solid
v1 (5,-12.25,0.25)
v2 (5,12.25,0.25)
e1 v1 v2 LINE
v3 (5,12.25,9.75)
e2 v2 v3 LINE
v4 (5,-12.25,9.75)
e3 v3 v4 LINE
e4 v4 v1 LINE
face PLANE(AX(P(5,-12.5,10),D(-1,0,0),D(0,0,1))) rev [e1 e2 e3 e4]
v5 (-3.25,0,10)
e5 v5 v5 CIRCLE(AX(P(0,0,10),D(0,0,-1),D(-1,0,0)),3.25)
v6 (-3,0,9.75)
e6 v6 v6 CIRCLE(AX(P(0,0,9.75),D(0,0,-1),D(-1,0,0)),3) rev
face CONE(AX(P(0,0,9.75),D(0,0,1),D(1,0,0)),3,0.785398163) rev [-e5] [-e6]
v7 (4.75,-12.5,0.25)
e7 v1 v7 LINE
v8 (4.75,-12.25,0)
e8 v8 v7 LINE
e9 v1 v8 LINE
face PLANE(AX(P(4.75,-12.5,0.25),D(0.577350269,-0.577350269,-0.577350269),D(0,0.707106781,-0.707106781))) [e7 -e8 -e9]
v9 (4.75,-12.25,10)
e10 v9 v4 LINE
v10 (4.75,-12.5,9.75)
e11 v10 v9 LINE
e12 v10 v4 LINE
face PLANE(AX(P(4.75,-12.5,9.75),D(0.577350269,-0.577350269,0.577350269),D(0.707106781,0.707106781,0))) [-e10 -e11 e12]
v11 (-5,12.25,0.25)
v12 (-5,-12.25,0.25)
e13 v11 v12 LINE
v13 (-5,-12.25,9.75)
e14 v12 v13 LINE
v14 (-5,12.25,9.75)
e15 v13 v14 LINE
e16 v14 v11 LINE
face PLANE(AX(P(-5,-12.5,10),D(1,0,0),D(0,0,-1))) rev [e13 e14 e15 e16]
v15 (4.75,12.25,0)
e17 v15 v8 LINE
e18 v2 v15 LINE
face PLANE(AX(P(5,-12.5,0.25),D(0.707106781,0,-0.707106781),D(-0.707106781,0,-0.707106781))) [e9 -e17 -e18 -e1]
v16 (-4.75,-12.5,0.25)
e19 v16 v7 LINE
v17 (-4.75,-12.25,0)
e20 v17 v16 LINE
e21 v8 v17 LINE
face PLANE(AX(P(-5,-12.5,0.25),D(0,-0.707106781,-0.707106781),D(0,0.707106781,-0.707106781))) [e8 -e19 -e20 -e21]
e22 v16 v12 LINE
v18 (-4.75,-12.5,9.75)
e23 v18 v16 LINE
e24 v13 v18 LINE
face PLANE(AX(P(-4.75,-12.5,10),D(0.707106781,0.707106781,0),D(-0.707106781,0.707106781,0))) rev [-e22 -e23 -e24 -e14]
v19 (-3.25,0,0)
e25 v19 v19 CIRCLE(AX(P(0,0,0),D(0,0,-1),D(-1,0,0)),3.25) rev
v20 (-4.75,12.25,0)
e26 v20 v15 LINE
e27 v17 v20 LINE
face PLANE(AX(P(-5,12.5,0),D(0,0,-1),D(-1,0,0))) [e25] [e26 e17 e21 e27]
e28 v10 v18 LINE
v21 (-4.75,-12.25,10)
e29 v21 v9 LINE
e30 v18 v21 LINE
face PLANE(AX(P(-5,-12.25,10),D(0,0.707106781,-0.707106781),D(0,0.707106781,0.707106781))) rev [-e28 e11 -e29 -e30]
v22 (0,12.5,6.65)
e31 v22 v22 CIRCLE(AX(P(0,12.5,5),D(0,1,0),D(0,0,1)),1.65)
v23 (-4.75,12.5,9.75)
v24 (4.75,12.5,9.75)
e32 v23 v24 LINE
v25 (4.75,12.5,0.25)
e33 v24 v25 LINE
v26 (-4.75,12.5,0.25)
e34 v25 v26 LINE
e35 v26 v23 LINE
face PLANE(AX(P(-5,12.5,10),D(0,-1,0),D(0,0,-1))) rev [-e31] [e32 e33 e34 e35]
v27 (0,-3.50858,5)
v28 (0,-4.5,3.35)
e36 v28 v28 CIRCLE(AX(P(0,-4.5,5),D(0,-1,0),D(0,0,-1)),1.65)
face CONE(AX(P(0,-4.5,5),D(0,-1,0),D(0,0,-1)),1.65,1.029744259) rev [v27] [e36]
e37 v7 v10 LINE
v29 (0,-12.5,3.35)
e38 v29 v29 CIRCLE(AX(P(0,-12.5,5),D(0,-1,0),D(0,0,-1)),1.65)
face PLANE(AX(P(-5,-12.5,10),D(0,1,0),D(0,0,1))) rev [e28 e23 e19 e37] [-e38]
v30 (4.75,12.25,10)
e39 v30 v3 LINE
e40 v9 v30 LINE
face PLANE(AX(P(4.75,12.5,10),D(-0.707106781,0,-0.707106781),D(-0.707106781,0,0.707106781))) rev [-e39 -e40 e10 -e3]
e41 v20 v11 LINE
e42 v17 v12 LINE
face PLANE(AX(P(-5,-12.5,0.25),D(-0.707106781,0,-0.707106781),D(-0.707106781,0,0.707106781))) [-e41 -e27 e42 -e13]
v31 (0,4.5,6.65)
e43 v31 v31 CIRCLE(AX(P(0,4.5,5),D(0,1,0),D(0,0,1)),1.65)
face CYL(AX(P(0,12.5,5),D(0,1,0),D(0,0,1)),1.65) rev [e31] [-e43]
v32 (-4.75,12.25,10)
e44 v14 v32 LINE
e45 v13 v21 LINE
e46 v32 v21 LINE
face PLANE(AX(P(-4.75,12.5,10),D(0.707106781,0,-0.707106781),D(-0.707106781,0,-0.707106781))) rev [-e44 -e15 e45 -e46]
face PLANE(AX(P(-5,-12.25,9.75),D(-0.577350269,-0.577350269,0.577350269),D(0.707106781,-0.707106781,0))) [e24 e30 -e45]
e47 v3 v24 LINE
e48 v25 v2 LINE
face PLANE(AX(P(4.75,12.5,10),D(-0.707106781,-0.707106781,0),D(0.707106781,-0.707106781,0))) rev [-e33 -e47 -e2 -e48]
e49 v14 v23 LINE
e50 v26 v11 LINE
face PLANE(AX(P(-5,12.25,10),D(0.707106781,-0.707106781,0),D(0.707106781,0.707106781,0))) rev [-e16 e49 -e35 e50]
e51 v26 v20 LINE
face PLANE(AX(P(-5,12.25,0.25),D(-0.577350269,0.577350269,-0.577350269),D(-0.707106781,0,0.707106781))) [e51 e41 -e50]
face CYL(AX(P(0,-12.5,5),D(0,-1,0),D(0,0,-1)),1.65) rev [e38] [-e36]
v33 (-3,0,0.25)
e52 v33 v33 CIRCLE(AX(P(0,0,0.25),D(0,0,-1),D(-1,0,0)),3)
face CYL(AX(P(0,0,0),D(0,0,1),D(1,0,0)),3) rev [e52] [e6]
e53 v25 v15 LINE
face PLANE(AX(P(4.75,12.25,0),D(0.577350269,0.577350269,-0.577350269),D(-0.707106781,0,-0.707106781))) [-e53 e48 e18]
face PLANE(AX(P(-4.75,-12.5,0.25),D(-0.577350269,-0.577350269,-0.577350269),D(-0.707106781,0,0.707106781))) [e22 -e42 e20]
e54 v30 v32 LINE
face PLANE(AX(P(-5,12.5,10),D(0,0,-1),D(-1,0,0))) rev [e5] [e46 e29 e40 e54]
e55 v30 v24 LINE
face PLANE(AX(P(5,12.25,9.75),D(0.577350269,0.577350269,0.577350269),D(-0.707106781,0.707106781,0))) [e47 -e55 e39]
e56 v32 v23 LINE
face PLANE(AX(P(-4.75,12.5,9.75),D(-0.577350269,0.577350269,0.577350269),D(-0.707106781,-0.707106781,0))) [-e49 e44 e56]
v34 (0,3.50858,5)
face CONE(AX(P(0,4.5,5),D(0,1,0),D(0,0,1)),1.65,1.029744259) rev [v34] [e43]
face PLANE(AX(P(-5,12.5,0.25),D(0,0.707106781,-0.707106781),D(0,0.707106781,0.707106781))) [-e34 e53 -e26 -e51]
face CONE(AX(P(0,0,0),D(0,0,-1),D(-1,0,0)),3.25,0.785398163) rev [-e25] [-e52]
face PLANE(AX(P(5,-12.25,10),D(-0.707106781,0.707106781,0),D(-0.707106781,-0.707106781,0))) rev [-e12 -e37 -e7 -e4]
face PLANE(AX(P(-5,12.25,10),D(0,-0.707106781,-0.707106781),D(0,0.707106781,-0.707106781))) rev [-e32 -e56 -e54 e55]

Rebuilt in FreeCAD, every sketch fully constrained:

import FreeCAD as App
import Part
import Sketcher

V = App.Vector


def edges_at(feature, points):
    """Names of the edges that pass closest to the given points."""
    edges = feature.Shape.Edges
    near = lambda p: min(range(len(edges)), key=lambda i: edges[i].distToShape(Part.Vertex(*p))[0])
    return sorted({f"Edge{near(p) + 1}" for p in points})

doc = App.newDocument("Part")
params = doc.addObject("Spreadsheet::Sheet", "Params")
for row, (alias, value) in enumerate([
    ("sketch1_width", "10 mm"),
    ("sketch1_height", "25 mm"),
    ("pad1_length", "10 mm"),
    ("sketch2_diameter", "6 mm"),
    ("pocket1_length", "10 mm"),
    ("sketch3_diameter", "3.3 mm"),
    ("hole_diameter", "3.3 mm"),
    ("hole_depth", "8 mm"),
    ("sketch4_diameter", "3.3 mm"),
    ("hole2_diameter", "3.3 mm"),
    ("hole2_depth", "8 mm"),
    ("chamfer_size", "0.25 mm"),
], start=1):
    params.set(f"A{row}", alias)
    params.set(f"B{row}", "=" + value)
    params.setAlias(f"B{row}", alias)

body = doc.addObject("PartDesign::Body", "Body")

# Sketch on XY plane
sketch1 = body.newObject("Sketcher::SketchObject", "Sketch")
sketch1.AttachmentSupport = (doc.getObject("XY_Plane"), [""])
sketch1.MapMode = "FlatFace"
sketch1.addGeometry([
    Part.LineSegment(V(-5, 12, 0), V(-5, -12, 0)),
    Part.LineSegment(V(-5, -12, 0), V(5, -12, 0)),
    Part.LineSegment(V(5, -12, 0), V(5, 12, 0)),
    Part.LineSegment(V(5, 12, 0), V(-5, 12, 0)),
], False)
sketch1.addConstraint([
    Sketcher.Constraint("Coincident", 0, 2, 1, 1),
    Sketcher.Constraint("Coincident", 1, 2, 2, 1),
    Sketcher.Constraint("Coincident", 2, 2, 3, 1),
    Sketcher.Constraint("Coincident", 3, 2, 0, 1),
    Sketcher.Constraint("Vertical", 0),
    Sketcher.Constraint("Horizontal", 1),
    Sketcher.Constraint("Vertical", 2),
    Sketcher.Constraint("Horizontal", 3),
    Sketcher.Constraint("Symmetric", 0, 2, 2, 2, -1, 1),
    Sketcher.Constraint("DistanceX", 1, 1, 1, 2, 10.0),
    Sketcher.Constraint("DistanceY", 0, 2, 0, 1, 25.0),
])
sketch1.setExpression("Constraints[9]", "Params.sketch1_width")
sketch1.setExpression("Constraints[10]", "Params.sketch1_height")
pad1 = body.newObject("PartDesign::Pad", "Pad")
pad1.Profile = sketch1
pad1.setExpression("Length", "Params.pad1_length")

# Sketch on XY plane
sketch2 = body.newObject("Sketcher::SketchObject", "Sketch001")
sketch2.AttachmentSupport = (doc.getObject("XY_Plane"), [""])
sketch2.MapMode = "FlatFace"
sketch2.AttachmentOffset = App.Placement(V(0, 0, 10), App.Rotation())
sketch2.addGeometry(Part.Circle(V(0, 0, 0), V(0, 0, 1), 3), False)
sketch2.addConstraint([
    Sketcher.Constraint("Coincident", 0, 3, -1, 1),
    Sketcher.Constraint("Diameter", 0, 6.0),
])
sketch2.setExpression("Constraints[1]", "Params.sketch2_diameter")
pocket1 = body.newObject("PartDesign::Pocket", "Pocket")
pocket1.Profile = sketch2
pocket1.setExpression("Length", "Params.pocket1_length")

# Sketch on XZ plane
sketch3 = body.newObject("Sketcher::SketchObject", "Sketch002")
sketch3.AttachmentSupport = (doc.getObject("XZ_Plane"), [""])
sketch3.MapMode = "FlatFace"
sketch3.AttachmentOffset = App.Placement(V(0, 0, -12.5), App.Rotation())
sketch3.addGeometry(Part.Circle(V(0, 5, 0), V(0, 0, 1), 1.6), False)
sketch3.addConstraint([
    Sketcher.Constraint("PointOnObject", 0, 3, -2),
    Sketcher.Constraint("Diameter", 0, 3.3),
    Sketcher.Constraint("DistanceY", -1, 1, 0, 3, 5.0),
])
sketch3.setExpression("Constraints[1]", "Params.sketch3_diameter")
doc.recompute()
hole = body.newObject("PartDesign::Hole", "Hole")
hole.Profile = sketch3
hole.ThreadType = "None"
hole.setExpression("Diameter", "Params.hole_diameter")
hole.DepthType = "Dimension"
hole.setExpression("Depth", "Params.hole_depth")
hole.DrillPoint = "Angled"
hole.DrillPointAngle = 118
hole.Reversed = True

# Sketch on XZ plane
sketch4 = body.newObject("Sketcher::SketchObject", "Sketch003")
sketch4.AttachmentSupport = (doc.getObject("XZ_Plane"), [""])
sketch4.MapMode = "FlatFace"
sketch4.AttachmentOffset = App.Placement(V(0, 0, 12.5), App.Rotation())
sketch4.addGeometry(Part.Circle(V(0, 5, 0), V(0, 0, 1), 1.6), False)
sketch4.addConstraint([
    Sketcher.Constraint("PointOnObject", 0, 3, -2),
    Sketcher.Constraint("Diameter", 0, 3.3),
    Sketcher.Constraint("DistanceY", -1, 1, 0, 3, 5.0),
])
sketch4.setExpression("Constraints[1]", "Params.sketch4_diameter")
doc.recompute()
hole2 = body.newObject("PartDesign::Hole", "Hole001")
hole2.Profile = sketch4
hole2.ThreadType = "None"
hole2.setExpression("Diameter", "Params.hole2_diameter")
hole2.DepthType = "Dimension"
hole2.setExpression("Depth", "Params.hole2_depth")
hole2.DrillPoint = "Angled"
hole2.DrillPointAngle = 118
doc.recompute()

chamfer = body.newObject("PartDesign::Chamfer", "Chamfer")
chamfer.Base = (hole2, edges_at(hole2, [
    (5, 0, 10),
    (0, 12.5, 10),
    (-3, 0, 0),
    (-3, 0, 10),
    (-5, 0, 10),
    (0, 12.5, 0),
    (5, 0, 0),
    (0, -12.5, 0),
    (-5, 0, 0),
    (0, -12.5, 10),
    (-5, 12.5, 5),
    (5, 12.5, 5),
    (5, -12.5, 5),
    (-5, -12.5, 5),
]))
chamfer.setExpression("Size", "Params.chamfer_size")

doc.recompute()
